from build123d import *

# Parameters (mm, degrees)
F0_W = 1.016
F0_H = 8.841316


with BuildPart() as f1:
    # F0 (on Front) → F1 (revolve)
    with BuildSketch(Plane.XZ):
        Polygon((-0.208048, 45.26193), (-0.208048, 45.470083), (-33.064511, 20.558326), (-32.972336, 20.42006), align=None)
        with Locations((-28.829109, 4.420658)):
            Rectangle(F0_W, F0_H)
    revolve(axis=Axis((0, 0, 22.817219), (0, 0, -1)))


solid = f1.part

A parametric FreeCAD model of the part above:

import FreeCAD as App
import Part
import Sketcher
Q = App.Units.Quantity


def add_polygon(sketch, points):
    """Adds a closed chain of lines whose ends are joined by coincident constraints."""
    first, n = sketch.GeometryCount, len(points)
    for a, b in zip(points, points[1:] + points[:1]):
        sketch.addGeometry(Part.LineSegment(App.Vector(*a, 0), App.Vector(*b, 0)), False)
    for i in range(n):
        sketch.addConstraint(Sketcher.Constraint("Coincident", first + i, 2, first + (i + 1) % n, 1))

doc = App.newDocument("Part")
body = doc.addObject("PartDesign::Body", "Body")
body.AllowCompound = True

# Sketch on XZ plane
sketch1 = body.newObject("Sketcher::SketchObject", "Sketch")
sketch1.AttachmentSupport = (doc.getObject("XZ_Plane"), [""])
sketch1.MapMode = "FlatFace"
add_polygon(sketch1, [(-0.21, 45.26), (-0.21, 45.47), (-33.06, 20.56), (-32.97, 20.42)])  # lines 0-3
add_polygon(sketch1, [(-29.34, 8.84), (-29.34, 0), (-28.32, 0), (-28.32, 8.84)])  # lines 4-7
sketch1.addConstraint(Sketcher.Constraint("Vertical", 0))
sketch1.addConstraint(Sketcher.Constraint("Vertical", 4))
sketch1.addConstraint(Sketcher.Constraint("Horizontal", 5))
sketch1.addConstraint(Sketcher.Constraint("Vertical", 6))
sketch1.addConstraint(Sketcher.Constraint("Horizontal", 7))
sketch1.addConstraint(Sketcher.Constraint("PointOnObject", 4, 2, -1))
sketch1.addConstraint(Sketcher.Constraint("Parallel", 1, 3))
sketch1.addConstraint(Sketcher.Constraint("DistanceX", 5, 1, 5, 2, Q("0.04 in")))
sketch1.addConstraint(Sketcher.Constraint("DistanceY", 0, 1, 0, 2, Q("0.208153 mm")))
sketch1.addConstraint(Sketcher.Constraint("DistanceY", 4, 2, 4, 1, Q("8.841316 mm")))
sketch1.addConstraint(Sketcher.Constraint("DistanceX", 1, 2, -1, 1, Q("33.064511 mm")))
sketch1.addConstraint(Sketcher.Constraint("DistanceY", -1, 1, 2, 2, Q("20.42006 mm")))
sketch1.addConstraint(Sketcher.Constraint("DistanceY", -1, 1, 3, 2, Q("45.26193 mm")))
sketch1.addConstraint(Sketcher.Constraint("DistanceX", 4, 2, -1, 1, Q("29.337109 mm")))
sketch1.addConstraint(Sketcher.Constraint("DistanceX", 4, 2, 3, 2, Q("29.129061 mm")))
sketch1.addConstraint(Sketcher.Constraint("DistanceY", 6, 2, 1, 2, Q("11.71701 mm")))
revolution = body.newObject("PartDesign::Revolution", "Revolution")
revolution.Profile = sketch1
revolution.ReferenceAxis = (sketch1, ["V_Axis"])
revolution.Angle = 360

doc.recompute()
